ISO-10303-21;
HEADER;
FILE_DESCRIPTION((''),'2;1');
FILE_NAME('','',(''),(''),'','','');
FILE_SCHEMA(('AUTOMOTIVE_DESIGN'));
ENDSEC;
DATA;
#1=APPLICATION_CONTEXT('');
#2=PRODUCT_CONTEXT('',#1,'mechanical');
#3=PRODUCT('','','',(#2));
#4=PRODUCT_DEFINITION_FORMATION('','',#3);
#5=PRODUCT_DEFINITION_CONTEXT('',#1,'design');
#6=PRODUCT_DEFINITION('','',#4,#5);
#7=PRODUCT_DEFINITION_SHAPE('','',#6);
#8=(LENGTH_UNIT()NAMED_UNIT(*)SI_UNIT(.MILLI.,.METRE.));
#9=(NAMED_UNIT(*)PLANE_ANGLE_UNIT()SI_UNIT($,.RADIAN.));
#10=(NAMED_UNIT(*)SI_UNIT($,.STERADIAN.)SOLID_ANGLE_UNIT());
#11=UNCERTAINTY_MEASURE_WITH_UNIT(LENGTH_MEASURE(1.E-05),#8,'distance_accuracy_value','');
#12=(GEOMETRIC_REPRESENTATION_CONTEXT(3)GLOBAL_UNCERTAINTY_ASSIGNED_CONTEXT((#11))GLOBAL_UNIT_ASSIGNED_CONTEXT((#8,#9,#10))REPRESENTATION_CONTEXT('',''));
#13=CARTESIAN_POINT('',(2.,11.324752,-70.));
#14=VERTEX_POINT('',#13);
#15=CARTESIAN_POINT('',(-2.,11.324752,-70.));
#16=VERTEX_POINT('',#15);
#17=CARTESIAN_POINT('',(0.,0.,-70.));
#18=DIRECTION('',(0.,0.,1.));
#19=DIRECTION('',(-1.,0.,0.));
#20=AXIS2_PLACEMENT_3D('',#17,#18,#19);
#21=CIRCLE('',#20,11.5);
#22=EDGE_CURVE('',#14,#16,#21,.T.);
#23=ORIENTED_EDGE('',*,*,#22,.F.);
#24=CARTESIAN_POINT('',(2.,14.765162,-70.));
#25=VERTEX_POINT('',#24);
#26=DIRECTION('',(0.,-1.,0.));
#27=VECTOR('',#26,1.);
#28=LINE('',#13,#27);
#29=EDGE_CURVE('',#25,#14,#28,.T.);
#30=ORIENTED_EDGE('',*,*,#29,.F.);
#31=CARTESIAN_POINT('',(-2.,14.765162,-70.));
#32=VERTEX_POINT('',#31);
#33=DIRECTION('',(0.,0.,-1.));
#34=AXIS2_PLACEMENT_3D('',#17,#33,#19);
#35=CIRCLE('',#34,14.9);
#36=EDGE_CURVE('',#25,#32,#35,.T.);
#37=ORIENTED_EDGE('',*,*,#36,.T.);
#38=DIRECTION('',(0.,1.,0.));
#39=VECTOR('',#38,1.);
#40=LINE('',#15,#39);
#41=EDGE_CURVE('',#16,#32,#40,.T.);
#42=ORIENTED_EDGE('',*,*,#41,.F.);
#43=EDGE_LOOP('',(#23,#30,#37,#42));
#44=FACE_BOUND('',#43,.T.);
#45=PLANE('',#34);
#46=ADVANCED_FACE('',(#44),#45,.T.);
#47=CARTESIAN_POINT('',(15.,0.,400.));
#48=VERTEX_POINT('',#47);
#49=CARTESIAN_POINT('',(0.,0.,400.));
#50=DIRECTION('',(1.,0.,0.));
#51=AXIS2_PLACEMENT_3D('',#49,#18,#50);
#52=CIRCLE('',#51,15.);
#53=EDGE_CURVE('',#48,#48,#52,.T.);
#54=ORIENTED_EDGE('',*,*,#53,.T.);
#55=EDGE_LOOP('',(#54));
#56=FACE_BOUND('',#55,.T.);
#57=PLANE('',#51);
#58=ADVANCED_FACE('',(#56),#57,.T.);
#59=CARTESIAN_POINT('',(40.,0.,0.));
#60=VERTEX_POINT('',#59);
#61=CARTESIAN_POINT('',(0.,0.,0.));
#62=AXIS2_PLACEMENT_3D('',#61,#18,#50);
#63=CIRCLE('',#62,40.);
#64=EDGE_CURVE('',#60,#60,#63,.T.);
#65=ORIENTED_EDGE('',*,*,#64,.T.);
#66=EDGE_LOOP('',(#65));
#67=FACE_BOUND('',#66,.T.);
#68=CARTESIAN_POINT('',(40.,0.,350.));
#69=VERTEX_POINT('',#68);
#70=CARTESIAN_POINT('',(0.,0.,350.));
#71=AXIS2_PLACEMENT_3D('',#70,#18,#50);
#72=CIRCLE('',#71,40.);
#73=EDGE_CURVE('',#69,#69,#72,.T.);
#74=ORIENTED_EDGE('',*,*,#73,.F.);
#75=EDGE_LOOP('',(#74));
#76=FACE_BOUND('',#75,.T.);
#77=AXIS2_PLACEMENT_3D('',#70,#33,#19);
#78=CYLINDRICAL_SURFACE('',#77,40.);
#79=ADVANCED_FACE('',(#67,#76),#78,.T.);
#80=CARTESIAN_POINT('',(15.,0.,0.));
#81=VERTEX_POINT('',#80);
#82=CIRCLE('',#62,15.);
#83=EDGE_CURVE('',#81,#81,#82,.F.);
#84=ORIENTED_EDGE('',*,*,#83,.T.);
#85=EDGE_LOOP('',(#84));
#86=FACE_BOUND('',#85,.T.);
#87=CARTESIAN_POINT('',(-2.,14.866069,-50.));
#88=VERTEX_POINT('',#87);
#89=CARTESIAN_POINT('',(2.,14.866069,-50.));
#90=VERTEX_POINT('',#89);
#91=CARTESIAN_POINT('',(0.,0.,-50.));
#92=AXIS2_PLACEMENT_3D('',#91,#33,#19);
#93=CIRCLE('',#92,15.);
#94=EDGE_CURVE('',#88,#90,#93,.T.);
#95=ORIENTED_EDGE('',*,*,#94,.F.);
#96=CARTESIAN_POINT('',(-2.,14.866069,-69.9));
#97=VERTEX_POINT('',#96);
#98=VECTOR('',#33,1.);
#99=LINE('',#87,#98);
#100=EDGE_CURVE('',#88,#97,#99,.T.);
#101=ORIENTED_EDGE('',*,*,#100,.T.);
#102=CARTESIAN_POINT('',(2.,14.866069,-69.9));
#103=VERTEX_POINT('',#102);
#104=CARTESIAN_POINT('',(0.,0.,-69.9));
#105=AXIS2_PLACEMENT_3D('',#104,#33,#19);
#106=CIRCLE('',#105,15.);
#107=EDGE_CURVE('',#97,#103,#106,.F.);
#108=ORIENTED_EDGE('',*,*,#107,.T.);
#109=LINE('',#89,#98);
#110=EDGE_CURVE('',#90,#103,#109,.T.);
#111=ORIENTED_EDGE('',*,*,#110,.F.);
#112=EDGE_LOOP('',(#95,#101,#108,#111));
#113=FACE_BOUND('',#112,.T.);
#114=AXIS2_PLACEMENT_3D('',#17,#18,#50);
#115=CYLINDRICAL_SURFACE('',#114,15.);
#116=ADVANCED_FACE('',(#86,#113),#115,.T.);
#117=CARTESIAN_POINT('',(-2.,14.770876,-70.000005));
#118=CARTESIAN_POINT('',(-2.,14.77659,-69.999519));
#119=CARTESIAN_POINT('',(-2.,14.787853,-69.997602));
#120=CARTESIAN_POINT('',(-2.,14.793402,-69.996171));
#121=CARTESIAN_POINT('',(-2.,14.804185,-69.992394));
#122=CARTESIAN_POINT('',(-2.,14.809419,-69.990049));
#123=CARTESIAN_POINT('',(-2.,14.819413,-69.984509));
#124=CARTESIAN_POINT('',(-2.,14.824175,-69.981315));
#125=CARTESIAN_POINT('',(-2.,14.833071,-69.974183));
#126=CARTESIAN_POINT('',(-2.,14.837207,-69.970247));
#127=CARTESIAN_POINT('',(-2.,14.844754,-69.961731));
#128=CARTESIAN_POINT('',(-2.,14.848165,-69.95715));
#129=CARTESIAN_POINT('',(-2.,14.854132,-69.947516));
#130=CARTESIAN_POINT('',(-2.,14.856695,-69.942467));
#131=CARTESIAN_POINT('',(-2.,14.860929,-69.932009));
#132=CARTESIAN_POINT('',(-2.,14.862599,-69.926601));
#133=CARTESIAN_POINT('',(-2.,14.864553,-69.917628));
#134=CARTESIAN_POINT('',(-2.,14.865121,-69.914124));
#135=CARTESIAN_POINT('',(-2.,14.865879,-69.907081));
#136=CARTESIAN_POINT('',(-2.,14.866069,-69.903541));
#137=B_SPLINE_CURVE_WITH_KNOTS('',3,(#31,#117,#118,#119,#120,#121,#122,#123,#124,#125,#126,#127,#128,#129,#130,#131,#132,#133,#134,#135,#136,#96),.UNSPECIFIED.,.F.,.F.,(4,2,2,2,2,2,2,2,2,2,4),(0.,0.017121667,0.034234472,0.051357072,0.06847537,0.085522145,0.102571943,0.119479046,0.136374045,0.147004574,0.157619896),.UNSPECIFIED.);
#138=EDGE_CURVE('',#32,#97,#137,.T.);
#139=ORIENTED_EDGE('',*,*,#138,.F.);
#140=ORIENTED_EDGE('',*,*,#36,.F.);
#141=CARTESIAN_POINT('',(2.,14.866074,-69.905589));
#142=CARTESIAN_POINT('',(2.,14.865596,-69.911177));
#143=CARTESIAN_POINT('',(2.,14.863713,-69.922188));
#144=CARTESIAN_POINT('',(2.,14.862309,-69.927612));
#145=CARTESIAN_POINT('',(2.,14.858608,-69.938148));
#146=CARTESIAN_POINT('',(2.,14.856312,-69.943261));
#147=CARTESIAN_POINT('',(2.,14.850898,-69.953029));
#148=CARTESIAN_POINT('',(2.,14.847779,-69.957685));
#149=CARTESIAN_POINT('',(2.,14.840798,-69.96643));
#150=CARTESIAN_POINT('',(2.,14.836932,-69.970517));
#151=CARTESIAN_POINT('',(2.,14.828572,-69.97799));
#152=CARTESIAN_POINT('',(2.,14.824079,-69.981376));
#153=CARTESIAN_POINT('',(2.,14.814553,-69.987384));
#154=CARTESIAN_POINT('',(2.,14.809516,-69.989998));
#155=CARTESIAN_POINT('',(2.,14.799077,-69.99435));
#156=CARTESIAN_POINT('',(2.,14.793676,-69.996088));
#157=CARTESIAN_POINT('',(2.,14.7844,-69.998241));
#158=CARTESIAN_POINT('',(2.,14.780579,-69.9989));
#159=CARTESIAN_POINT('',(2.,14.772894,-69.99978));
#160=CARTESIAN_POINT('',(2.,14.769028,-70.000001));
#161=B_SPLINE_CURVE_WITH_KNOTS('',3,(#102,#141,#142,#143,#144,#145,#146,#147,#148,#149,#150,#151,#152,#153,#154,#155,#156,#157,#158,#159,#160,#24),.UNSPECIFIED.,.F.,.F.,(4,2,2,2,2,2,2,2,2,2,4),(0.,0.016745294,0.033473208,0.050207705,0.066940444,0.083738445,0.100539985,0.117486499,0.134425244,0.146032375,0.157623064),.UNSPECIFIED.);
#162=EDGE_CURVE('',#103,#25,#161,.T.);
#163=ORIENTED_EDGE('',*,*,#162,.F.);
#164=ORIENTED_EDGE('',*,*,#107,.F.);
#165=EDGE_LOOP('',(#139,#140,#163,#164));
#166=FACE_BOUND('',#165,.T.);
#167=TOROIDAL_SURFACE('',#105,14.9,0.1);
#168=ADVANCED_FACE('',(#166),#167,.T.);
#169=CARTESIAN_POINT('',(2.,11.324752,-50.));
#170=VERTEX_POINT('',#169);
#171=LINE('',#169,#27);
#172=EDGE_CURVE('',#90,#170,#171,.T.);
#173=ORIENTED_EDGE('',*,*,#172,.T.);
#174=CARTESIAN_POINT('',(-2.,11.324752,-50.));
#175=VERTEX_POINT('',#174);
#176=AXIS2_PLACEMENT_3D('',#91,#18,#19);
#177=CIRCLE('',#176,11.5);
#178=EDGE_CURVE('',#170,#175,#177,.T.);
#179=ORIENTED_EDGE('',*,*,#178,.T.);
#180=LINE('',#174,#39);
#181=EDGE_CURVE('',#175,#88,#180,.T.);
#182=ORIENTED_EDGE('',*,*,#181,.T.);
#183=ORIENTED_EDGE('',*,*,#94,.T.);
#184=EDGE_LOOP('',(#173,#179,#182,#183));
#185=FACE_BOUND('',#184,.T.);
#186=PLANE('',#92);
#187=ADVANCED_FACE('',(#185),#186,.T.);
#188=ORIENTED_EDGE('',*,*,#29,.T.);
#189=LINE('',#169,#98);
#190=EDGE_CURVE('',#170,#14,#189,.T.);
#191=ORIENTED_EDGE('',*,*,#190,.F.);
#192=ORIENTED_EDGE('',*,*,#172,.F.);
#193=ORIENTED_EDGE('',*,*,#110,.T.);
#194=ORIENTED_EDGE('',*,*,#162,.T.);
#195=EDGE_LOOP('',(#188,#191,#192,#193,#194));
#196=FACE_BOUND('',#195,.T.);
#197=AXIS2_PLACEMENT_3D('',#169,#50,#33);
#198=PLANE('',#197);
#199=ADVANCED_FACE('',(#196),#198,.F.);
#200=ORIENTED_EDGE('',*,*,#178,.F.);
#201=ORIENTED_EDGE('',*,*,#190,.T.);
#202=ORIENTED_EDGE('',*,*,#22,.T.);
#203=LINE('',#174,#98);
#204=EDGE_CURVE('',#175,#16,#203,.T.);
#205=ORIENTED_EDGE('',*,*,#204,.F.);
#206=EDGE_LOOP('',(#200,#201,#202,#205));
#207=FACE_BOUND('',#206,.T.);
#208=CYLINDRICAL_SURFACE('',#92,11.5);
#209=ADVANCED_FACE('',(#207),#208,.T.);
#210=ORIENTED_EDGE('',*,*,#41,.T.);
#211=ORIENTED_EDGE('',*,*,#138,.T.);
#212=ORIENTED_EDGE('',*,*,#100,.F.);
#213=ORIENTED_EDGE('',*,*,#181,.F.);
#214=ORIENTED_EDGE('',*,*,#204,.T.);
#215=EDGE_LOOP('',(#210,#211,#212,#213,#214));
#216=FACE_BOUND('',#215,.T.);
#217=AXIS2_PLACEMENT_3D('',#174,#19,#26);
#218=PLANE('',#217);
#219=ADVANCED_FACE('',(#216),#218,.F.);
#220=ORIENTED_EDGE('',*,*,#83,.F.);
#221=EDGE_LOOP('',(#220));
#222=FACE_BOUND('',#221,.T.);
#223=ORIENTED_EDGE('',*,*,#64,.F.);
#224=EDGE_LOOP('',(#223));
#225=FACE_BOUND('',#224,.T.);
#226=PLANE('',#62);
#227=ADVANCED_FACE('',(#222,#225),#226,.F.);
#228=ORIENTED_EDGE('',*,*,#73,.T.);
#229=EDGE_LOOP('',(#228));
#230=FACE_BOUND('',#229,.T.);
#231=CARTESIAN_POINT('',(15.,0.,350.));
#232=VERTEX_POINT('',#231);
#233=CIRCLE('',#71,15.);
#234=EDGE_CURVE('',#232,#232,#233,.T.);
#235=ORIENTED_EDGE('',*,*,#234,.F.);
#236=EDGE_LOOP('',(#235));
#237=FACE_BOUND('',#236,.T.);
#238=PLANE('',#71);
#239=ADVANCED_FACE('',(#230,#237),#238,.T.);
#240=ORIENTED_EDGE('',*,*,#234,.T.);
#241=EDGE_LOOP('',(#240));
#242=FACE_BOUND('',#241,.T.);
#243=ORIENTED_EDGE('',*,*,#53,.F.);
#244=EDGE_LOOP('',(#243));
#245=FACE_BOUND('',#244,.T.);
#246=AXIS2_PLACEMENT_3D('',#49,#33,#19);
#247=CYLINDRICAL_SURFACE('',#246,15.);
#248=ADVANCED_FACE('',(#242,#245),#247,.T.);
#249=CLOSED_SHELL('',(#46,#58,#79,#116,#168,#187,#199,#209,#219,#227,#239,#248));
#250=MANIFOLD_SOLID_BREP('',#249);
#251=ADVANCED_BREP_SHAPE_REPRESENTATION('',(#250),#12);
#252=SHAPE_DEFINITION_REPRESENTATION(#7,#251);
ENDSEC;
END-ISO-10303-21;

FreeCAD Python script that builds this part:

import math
import FreeCAD as App
import Part
import Sketcher
Q = App.Units.Quantity


def edges_at(feature, points):
    """Names of the edges that pass closest to the given points."""
    edges = feature.Shape.Edges
    near = lambda p: min(range(len(edges)), key=lambda i: edges[i].distToShape(Part.Vertex(*p))[0])
    return sorted({f"Edge{near(p) + 1}" for p in points})

doc = App.newDocument("Part")
params = doc.addObject("Spreadsheet::Sheet", "Params")
for row, (alias, value) in enumerate([
    ("sketch1_diameter", "80 mm"),
    ("pad1_length", "350 mm"),
    ("sketch2_diameter", "30 mm"),
    ("pad2_length", "50 mm"),
    ("sketch3_diameter", "30 mm"),
    ("pad3_length", "70 mm"),
    ("sketch4_radius", "15 mm"),
    ("sketch4_radius2", "11.5 mm"),
    ("pocket1_length", "20 mm"),
    ("fillet_radius", "0.1 mm"),
], start=1):
    params.set(f"A{row}", alias)
    params.set(f"B{row}", "=" + value)
    params.setAlias(f"B{row}", alias)

body = doc.addObject("PartDesign::Body", "Body")

sketch1 = body.newObject("Sketcher::SketchObject", "Sketch")
sketch1.AttachmentSupport = (doc.getObject("XY_Plane"), [""])
sketch1.MapMode = "FlatFace"
sketch1.addGeometry(Part.Circle(App.Vector(0, 0, 0), App.Vector(0, 0, 1), 40), False)
sketch1.addConstraint(Sketcher.Constraint("Coincident", 0, 3, -1, 1))
sketch1.addConstraint(Sketcher.Constraint("Diameter", 0, Q("80 mm")))
sketch1.setExpression("Constraints[1]", "Params.sketch1_diameter")
pad1 = body.newObject("PartDesign::Pad", "Pad")
pad1.Profile = sketch1
pad1.setExpression("Length", "Params.pad1_length")

sketch2 = body.newObject("Sketcher::SketchObject", "Sketch001")
sketch2.AttachmentSupport = (doc.getObject("XY_Plane"), [""])
sketch2.MapMode = "FlatFace"
sketch2.AttachmentOffset = App.Placement(App.Vector(0, 0, 350), App.Rotation())
sketch2.addGeometry(Part.Circle(App.Vector(0, 0, 0), App.Vector(0, 0, 1), 15), False)
sketch2.addConstraint(Sketcher.Constraint("Coincident", 0, 3, -1, 1))
sketch2.addConstraint(Sketcher.Constraint("Diameter", 0, Q("30 mm")))
sketch2.setExpression("Constraints[1]", "Params.sketch2_diameter")
pad2 = body.newObject("PartDesign::Pad", "Pad001")
pad2.Profile = sketch2
pad2.setExpression("Length", "Params.pad2_length")

sketch3 = body.newObject("Sketcher::SketchObject", "Sketch002")
sketch3.AttachmentSupport = (doc.getObject("XY_Plane"), [""])
sketch3.MapMode = "FlatFace"
sketch3.AttachmentOffset = App.Placement(App.Vector(0, 0, -70), App.Rotation())
sketch3.addGeometry(Part.Circle(App.Vector(0, 0, 0), App.Vector(0, 0, 1), 15), False)
sketch3.addConstraint(Sketcher.Constraint("Coincident", 0, 3, -1, 1))
sketch3.addConstraint(Sketcher.Constraint("Diameter", 0, Q("30 mm")))
sketch3.setExpression("Constraints[1]", "Params.sketch3_diameter")
pad3 = body.newObject("PartDesign::Pad", "Pad002")
pad3.Profile = sketch3
pad3.setExpression("Length", "Params.pad3_length")

sketch4 = body.newObject("Sketcher::SketchObject", "Sketch003")
sketch4.AttachmentSupport = (doc.getObject("XY_Plane"), [""])
sketch4.MapMode = "FlatFace"
sketch4.AttachmentOffset = App.Placement(App.Vector(0, 0, -70), App.Rotation())
sketch4.addGeometry(Part.LineSegment(App.Vector(2, 14.9, 0), App.Vector(2, 11.3, 0)), False)
sketch4.addGeometry(Part.ArcOfCircle(Part.Circle(App.Vector(0, 0, 0), App.Vector(0, 0, 1), 11.5), math.radians(80), math.radians(100)), False)
sketch4.addGeometry(Part.LineSegment(App.Vector(-2, 11.3, 0), App.Vector(-2, 14.9, 0)), False)
sketch4.addGeometry(Part.ArcOfCircle(Part.Circle(App.Vector(0, 0, 0), App.Vector(0, 0, 1), 15), math.radians(82.34), math.radians(97.66)), False)
sketch4.addConstraint(Sketcher.Constraint("Coincident", 0, 2, 1, 1))
sketch4.addConstraint(Sketcher.Constraint("Coincident", 1, 2, 2, 1))
sketch4.addConstraint(Sketcher.Constraint("Coincident", 2, 2, 3, 2))
sketch4.addConstraint(Sketcher.Constraint("Coincident", 3, 1, 0, 1))
sketch4.addConstraint(Sketcher.Constraint("Vertical", 0))
sketch4.addConstraint(Sketcher.Constraint("Vertical", 2))
sketch4.addConstraint(Sketcher.Constraint("Coincident", 1, 3, -1, 1))
sketch4.addConstraint(Sketcher.Constraint("Coincident", 3, 3, -1, 1))
sketch4.addConstraint(Sketcher.Constraint("Horizontal", 0, 2, 1, 2))
sketch4.addConstraint(Sketcher.Constraint("Radius", 3, Q("15 mm")))
sketch4.addConstraint(Sketcher.Constraint("Radius", 1, Q("11.5 mm")))
sketch4.addConstraint(Sketcher.Constraint("DistanceX", -1, 1, 0, 2, Q("2 mm")))
sketch4.setExpression("Constraints[9]", "Params.sketch4_radius")
sketch4.setExpression("Constraints[10]", "Params.sketch4_radius2")
pocket1 = body.newObject("PartDesign::Pocket", "Pocket")
pocket1.Profile = sketch4
pocket1.setExpression("Length", "Params.pocket1_length")
pocket1.Reversed = True
doc.recompute()

fillet = body.newObject("PartDesign::Fillet", "Fillet")
fillet.Base = (pocket1, edges_at(pocket1, [(-9.874, -11.292, -70)]))
fillet.setExpression("Radius", "Params.fillet_radius")

doc.recompute()
